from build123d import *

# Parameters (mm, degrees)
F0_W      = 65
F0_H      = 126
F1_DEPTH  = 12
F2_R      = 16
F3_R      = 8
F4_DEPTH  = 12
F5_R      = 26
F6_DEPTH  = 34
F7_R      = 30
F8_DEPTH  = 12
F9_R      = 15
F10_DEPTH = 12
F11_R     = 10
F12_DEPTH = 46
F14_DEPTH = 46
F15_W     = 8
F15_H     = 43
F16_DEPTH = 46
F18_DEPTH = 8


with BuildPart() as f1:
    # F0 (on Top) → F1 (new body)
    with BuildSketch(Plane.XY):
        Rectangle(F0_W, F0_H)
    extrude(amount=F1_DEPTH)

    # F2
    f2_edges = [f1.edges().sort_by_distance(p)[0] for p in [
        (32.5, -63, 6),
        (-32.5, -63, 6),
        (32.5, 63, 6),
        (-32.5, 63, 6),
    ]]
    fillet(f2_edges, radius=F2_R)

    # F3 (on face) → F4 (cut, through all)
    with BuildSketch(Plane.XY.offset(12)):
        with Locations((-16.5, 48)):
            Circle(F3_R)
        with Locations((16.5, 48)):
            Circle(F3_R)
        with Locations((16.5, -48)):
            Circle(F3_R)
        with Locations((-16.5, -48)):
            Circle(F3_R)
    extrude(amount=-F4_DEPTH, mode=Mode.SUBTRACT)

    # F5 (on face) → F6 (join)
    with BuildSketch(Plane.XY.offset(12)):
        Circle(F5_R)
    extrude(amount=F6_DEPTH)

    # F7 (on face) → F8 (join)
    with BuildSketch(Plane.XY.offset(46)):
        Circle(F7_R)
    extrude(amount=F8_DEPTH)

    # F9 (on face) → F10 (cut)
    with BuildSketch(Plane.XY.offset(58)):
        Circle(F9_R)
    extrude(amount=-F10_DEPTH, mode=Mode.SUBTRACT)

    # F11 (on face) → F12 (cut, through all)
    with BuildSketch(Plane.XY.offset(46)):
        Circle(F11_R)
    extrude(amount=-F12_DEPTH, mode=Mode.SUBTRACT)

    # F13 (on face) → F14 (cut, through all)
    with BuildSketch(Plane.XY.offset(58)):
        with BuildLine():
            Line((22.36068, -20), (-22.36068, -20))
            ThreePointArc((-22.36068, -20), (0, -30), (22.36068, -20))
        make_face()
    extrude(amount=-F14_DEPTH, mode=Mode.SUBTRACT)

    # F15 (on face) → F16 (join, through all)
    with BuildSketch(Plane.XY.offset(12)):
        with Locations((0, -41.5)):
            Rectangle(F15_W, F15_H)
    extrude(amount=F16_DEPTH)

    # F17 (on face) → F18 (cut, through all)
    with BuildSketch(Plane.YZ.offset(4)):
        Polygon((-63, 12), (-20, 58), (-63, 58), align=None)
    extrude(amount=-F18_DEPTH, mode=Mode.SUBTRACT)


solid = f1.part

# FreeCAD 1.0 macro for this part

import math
import FreeCAD as App
import Part
import Sketcher

V = App.Vector
Q = App.Units.Quantity


def edges_at(feature, points):
    """Names of the edges that pass closest to the given points."""
    edges = feature.Shape.Edges
    near = lambda p: min(range(len(edges)), key=lambda i: edges[i].distToShape(Part.Vertex(*p))[0])
    return sorted({f"Edge{near(p) + 1}" for p in points})


def add_polygon(sketch, points):
    """Adds a closed chain of lines whose ends are joined by coincident constraints."""
    first, n = sketch.GeometryCount, len(points)
    for a, b in zip(points, points[1:] + points[:1]):
        sketch.addGeometry(Part.LineSegment(App.Vector(*a, 0), App.Vector(*b, 0)), False)
    for i in range(n):
        sketch.addConstraint(Sketcher.Constraint("Coincident", first + i, 2, first + (i + 1) % n, 1))

doc = App.newDocument("Part")
body = doc.addObject("PartDesign::Body", "Body")

# Sketch on XY plane
sketch1 = doc.addObject("Sketcher::SketchObject", "Sketch")
body.addObject(sketch1)
sketch1.AttachmentSupport = (doc.XY_Plane, [""])
sketch1.MapMode = "FlatFace"
add_polygon(sketch1, [(-32.5, 63), (-32.5, -63), (32.5, -63), (32.5, 63)])  # lines 0-3
sketch1.addConstraint([
    Sketcher.Constraint("Vertical", 0),
    Sketcher.Constraint("Horizontal", 1),
    Sketcher.Constraint("Vertical", 2),
    Sketcher.Constraint("Horizontal", 3),
    Sketcher.Constraint("Symmetric", 0, 2, 2, 2, -1, 1),
    Sketcher.Constraint("DistanceX", 1, 1, 1, 2, Q("65 mm")),
    Sketcher.Constraint("DistanceY", 0, 2, 0, 1, Q("126 mm")),
])
pad1 = doc.addObject("PartDesign::Pad", "Pad")
body.addObject(pad1)
pad1.Profile = sketch1
pad1.Length = 12
doc.recompute()

fillet = doc.addObject("PartDesign::Fillet", "Fillet")
body.addObject(fillet)
fillet.Base = (pad1, edges_at(pad1, [
    (32.5, -63, 6),
    (-32.5, -63, 6),
    (32.5, 63, 6),
    (-32.5, 63, 6),
]))
fillet.Radius = 16

# Sketch on XY plane
sketch2 = doc.addObject("Sketcher::SketchObject", "Sketch001")
body.addObject(sketch2)
sketch2.AttachmentSupport = (doc.XY_Plane, [""])
sketch2.MapMode = "FlatFace"
sketch2.AttachmentOffset = App.Placement(V(0, 0, 12), App.Rotation())
sketch2.addGeometry([
    Part.Circle(V(-16.5, 48, 0), V(0, 0, 1), 8),
    Part.Circle(V(16.5, 48, 0), V(0, 0, 1), 8),
    Part.Circle(V(16.5, -48, 0), V(0, 0, 1), 8),
    Part.Circle(V(-16.5, -48, 0), V(0, 0, 1), 8),
], False)
sketch2.addConstraint([
    Sketcher.Constraint("Equal", 0, 1),
    Sketcher.Constraint("Equal", 1, 2),
    Sketcher.Constraint("Equal", 2, 3),
    Sketcher.Constraint("Symmetric", 0, 3, 2, 3, -1, 1),
    Sketcher.Constraint("Symmetric", 1, 3, 3, 3, -1, 1),
    Sketcher.Constraint("Symmetric", 0, 3, 1, 3, -2),
    Sketcher.Constraint("Diameter", 0, Q("16 mm")),
    Sketcher.Constraint("DistanceY", -1, 1, 0, 3, Q("48 mm")),
    Sketcher.Constraint("DistanceX", 0, 3, 1, 3, Q("33 mm")),
])
pocket1 = doc.addObject("PartDesign::Pocket", "Pocket")
body.addObject(pocket1)
pocket1.Profile = sketch2
pocket1.Type = "ThroughAll"

# Sketch on XY plane
sketch3 = doc.addObject("Sketcher::SketchObject", "Sketch002")
body.addObject(sketch3)
sketch3.AttachmentSupport = (doc.XY_Plane, [""])
sketch3.MapMode = "FlatFace"
sketch3.AttachmentOffset = App.Placement(V(0, 0, 12), App.Rotation())
sketch3.addGeometry(Part.Circle(V(0, 0, 0), V(0, 0, 1), 26), False)
sketch3.addConstraint([
    Sketcher.Constraint("Coincident", 0, 3, -1, 1),
    Sketcher.Constraint("Diameter", 0, Q("52 mm")),
])
pad2 = doc.addObject("PartDesign::Pad", "Pad001")
body.addObject(pad2)
pad2.Profile = sketch3
pad2.Length = 34

# Sketch on XY plane
sketch4 = doc.addObject("Sketcher::SketchObject", "Sketch003")
body.addObject(sketch4)
sketch4.AttachmentSupport = (doc.XY_Plane, [""])
sketch4.MapMode = "FlatFace"
sketch4.AttachmentOffset = App.Placement(V(0, 0, 46), App.Rotation())
sketch4.addGeometry(Part.Circle(V(0, 0, 0), V(0, 0, 1), 30), False)
sketch4.addConstraint([
    Sketcher.Constraint("Coincident", 0, 3, -1, 1),
    Sketcher.Constraint("Diameter", 0, Q("60 mm")),
])
pad3 = doc.addObject("PartDesign::Pad", "Pad002")
body.addObject(pad3)
pad3.Profile = sketch4
pad3.Length = 12

# Sketch on XY plane
sketch5 = doc.addObject("Sketcher::SketchObject", "Sketch004")
body.addObject(sketch5)
sketch5.AttachmentSupport = (doc.XY_Plane, [""])
sketch5.MapMode = "FlatFace"
sketch5.AttachmentOffset = App.Placement(V(0, 0, 58), App.Rotation())
sketch5.addGeometry(Part.Circle(V(0, 0, 0), V(0, 0, 1), 15), False)
sketch5.addConstraint([
    Sketcher.Constraint("Coincident", 0, 3, -1, 1),
    Sketcher.Constraint("Diameter", 0, Q("30 mm")),
])
pocket2 = doc.addObject("PartDesign::Pocket", "Pocket001")
body.addObject(pocket2)
pocket2.Profile = sketch5
pocket2.Length = 12

# Sketch on XY plane
sketch6 = doc.addObject("Sketcher::SketchObject", "Sketch005")
body.addObject(sketch6)
sketch6.AttachmentSupport = (doc.XY_Plane, [""])
sketch6.MapMode = "FlatFace"
sketch6.AttachmentOffset = App.Placement(V(0, 0, 46), App.Rotation())
sketch6.addGeometry(Part.Circle(V(0, 0, 0), V(0, 0, 1), 10), False)
sketch6.addConstraint([
    Sketcher.Constraint("Coincident", 0, 3, -1, 1),
    Sketcher.Constraint("Diameter", 0, Q("20 mm")),
])
pocket3 = doc.addObject("PartDesign::Pocket", "Pocket002")
body.addObject(pocket3)
pocket3.Profile = sketch6
pocket3.Type = "ThroughAll"

# Sketch on XY plane
sketch7 = doc.addObject("Sketcher::SketchObject", "Sketch006")
body.addObject(sketch7)
sketch7.AttachmentSupport = (doc.XY_Plane, [""])
sketch7.MapMode = "FlatFace"
sketch7.AttachmentOffset = App.Placement(V(0, 0, 58), App.Rotation())
sketch7.addGeometry([
    Part.LineSegment(V(22.36068, -20, 0), V(-22.36068, -20, 0)),
    Part.ArcOfCircle(Part.Circle(V(0, 0.000001, 0), V(0, 0, 1), 30.000001), math.radians(-138.189685), math.radians(-41.810315)),
], False)
sketch7.addConstraint([
    Sketcher.Constraint("Coincident", 0, 1, 1, 2),
    Sketcher.Constraint("Coincident", 1, 1, 0, 2),
    Sketcher.Constraint("Horizontal", 0),
    Sketcher.Constraint("Coincident", 1, 3, -1, 1),
    Sketcher.Constraint("Radius", 1, Q("30.000001 mm")),
    Sketcher.Constraint("DistanceY", 0, 1, -1, 1, Q("20 mm")),
])
pocket4 = doc.addObject("PartDesign::Pocket", "Pocket003")
body.addObject(pocket4)
pocket4.Profile = sketch7
pocket4.Length = 46

# Sketch on XY plane
sketch8 = doc.addObject("Sketcher::SketchObject", "Sketch007")
body.addObject(sketch8)
sketch8.AttachmentSupport = (doc.XY_Plane, [""])
sketch8.MapMode = "FlatFace"
sketch8.AttachmentOffset = App.Placement(V(0, 0, 12), App.Rotation())
add_polygon(sketch8, [(-4, -20), (-4, -63), (4, -63), (4, -20)])  # lines 0-3
sketch8.addConstraint([
    Sketcher.Constraint("Vertical", 0),
    Sketcher.Constraint("Horizontal", 1),
    Sketcher.Constraint("Vertical", 2),
    Sketcher.Constraint("Horizontal", 3),
    Sketcher.Constraint("DistanceX", 1, 1, 1, 2, Q("8 mm")),
    Sketcher.Constraint("DistanceY", 0, 2, 0, 1, Q("43 mm")),
    Sketcher.Constraint("DistanceX", 0, 2, -1, 1, Q("4 mm")),
    Sketcher.Constraint("DistanceY", 0, 2, -1, 1, Q("63 mm")),
])
pad4 = doc.addObject("PartDesign::Pad", "Pad003")
body.addObject(pad4)
pad4.Profile = sketch8
pad4.Length = 46

# Sketch on YZ plane
sketch9 = doc.addObject("Sketcher::SketchObject", "Sketch008")
body.addObject(sketch9)
sketch9.AttachmentSupport = (doc.YZ_Plane, [""])
sketch9.MapMode = "FlatFace"
sketch9.AttachmentOffset = App.Placement(V(0, 0, 4), App.Rotation())
add_polygon(sketch9, [(-63, 12), (-20, 58), (-63, 58)])  # lines 0-2
sketch9.addConstraint([
    Sketcher.Constraint("Horizontal", 1),
    Sketcher.Constraint("Vertical", 2),
    Sketcher.Constraint("DistanceX", 1, 2, 1, 1, Q("43 mm")),
    Sketcher.Constraint("DistanceY", 2, 2, 2, 1, Q("46 mm")),
    Sketcher.Constraint("DistanceX", 0, 2, -1, 1, Q("20 mm")),
    Sketcher.Constraint("DistanceY", -1, 1, 0, 2, Q("58 mm")),
])
pocket5 = doc.addObject("PartDesign::Pocket", "Pocket004")
body.addObject(pocket5)
pocket5.Profile = sketch9
pocket5.Type = "ThroughAll"

doc.recompute()
